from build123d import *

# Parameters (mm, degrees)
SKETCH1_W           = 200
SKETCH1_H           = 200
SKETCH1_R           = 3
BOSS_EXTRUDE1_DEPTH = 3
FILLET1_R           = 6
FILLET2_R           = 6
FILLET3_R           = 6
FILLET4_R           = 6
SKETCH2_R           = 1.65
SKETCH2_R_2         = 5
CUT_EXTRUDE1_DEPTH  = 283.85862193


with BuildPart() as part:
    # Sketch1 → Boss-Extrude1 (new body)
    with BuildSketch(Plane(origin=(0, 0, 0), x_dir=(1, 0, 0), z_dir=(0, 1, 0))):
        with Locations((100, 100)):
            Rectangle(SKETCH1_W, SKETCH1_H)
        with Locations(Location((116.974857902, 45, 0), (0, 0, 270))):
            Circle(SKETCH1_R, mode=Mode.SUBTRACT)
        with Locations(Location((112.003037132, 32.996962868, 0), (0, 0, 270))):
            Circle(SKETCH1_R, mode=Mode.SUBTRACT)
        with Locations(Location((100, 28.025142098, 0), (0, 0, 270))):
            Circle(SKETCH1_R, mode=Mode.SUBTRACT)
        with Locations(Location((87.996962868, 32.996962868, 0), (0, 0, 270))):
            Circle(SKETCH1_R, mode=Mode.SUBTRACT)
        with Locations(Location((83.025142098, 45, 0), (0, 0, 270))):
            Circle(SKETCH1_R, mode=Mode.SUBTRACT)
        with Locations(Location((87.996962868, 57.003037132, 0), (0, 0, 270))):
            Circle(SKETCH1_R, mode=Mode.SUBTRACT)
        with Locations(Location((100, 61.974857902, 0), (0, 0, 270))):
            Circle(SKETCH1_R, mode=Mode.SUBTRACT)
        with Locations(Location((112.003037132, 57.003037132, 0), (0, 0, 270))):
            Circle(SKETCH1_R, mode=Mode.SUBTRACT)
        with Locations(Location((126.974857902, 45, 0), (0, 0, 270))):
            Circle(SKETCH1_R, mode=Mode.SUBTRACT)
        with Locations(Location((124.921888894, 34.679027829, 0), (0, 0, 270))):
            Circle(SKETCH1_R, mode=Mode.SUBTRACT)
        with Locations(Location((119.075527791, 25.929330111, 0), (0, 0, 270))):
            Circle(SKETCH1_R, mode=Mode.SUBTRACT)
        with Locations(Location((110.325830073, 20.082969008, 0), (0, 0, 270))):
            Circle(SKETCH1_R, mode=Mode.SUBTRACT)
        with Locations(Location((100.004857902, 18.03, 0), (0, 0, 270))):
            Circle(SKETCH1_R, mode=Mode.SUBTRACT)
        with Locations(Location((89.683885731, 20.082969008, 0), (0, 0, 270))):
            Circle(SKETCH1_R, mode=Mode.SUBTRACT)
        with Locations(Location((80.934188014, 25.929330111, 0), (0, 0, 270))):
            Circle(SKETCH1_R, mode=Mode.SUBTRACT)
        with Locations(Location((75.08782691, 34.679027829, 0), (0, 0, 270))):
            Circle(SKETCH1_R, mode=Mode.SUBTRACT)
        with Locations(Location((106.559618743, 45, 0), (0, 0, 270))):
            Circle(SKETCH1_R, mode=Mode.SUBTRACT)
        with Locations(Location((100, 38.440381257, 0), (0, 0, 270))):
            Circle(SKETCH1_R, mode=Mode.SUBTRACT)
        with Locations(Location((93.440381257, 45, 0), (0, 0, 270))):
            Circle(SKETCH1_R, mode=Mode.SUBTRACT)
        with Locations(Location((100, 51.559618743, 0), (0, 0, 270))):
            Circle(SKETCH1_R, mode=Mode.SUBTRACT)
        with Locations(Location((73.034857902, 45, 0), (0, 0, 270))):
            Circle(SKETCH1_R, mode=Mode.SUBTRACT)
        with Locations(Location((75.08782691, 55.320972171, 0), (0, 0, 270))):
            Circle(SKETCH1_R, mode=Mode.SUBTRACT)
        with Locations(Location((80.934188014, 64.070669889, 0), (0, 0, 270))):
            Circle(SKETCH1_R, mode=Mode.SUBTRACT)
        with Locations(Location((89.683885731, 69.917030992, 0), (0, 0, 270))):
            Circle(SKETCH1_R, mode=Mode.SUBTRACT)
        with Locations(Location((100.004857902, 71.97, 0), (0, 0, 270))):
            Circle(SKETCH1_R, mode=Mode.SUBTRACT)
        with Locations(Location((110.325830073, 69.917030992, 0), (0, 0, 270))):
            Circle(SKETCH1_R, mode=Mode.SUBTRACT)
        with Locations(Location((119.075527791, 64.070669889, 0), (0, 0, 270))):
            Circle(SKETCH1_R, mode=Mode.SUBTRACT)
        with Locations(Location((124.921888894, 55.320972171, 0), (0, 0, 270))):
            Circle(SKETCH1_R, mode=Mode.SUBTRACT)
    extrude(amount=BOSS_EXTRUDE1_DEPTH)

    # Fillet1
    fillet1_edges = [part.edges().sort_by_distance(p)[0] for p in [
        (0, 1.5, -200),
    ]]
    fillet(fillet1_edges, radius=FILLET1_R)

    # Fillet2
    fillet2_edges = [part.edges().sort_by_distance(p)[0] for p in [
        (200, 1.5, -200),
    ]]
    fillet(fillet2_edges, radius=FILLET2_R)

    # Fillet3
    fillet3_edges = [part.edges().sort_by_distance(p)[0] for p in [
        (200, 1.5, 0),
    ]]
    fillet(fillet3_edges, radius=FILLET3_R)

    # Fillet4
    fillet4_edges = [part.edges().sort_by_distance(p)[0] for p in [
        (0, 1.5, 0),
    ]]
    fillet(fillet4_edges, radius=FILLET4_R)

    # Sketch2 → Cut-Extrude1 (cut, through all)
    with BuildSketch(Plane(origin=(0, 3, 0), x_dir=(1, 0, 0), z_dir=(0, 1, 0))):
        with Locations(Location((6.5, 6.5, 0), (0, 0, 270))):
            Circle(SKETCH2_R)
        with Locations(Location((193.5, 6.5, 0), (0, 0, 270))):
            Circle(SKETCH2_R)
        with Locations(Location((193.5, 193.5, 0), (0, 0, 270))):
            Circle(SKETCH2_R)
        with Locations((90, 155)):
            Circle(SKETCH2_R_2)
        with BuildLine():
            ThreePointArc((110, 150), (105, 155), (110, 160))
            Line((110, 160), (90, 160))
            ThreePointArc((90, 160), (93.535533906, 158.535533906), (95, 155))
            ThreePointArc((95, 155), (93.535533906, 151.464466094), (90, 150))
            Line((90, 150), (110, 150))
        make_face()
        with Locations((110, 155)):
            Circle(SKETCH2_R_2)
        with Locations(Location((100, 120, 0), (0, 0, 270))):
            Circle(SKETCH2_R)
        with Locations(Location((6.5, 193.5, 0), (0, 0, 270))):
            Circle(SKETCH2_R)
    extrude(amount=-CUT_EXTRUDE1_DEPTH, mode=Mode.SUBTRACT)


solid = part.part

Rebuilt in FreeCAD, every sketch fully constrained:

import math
import FreeCAD as App
import Part
import Sketcher
from FreeCAD import Vector


def edges_at(feature, points):
    """Names of the edges that pass closest to the given points."""
    edges = feature.Shape.Edges
    near = lambda p: min(range(len(edges)), key=lambda i: edges[i].distToShape(Part.Vertex(*p))[0])
    return sorted({f"Edge{near(p) + 1}" for p in points})

doc = App.newDocument("Part")
body = doc.addObject("PartDesign::Body", "Body")

# Sketch on XZ plane
sketch1 = body.newObject("Sketcher::SketchObject", "Sketch")
sketch1.AttachmentSupport = (doc.getObject("XZ_Plane"), [""])
sketch1.MapMode = "FlatFace"
sketch1.addGeometry(Part.LineSegment(Vector(0, -200, 0), Vector(0, 0, 0)), False)
sketch1.addGeometry(Part.LineSegment(Vector(0, 0, 0), Vector(200, 0, 0)), False)
sketch1.addGeometry(Part.LineSegment(Vector(200, 0, 0), Vector(200, -200, 0)), False)
sketch1.addGeometry(Part.LineSegment(Vector(200, -200, 0), Vector(0, -200, 0)), False)
sketch1.addGeometry(Part.Circle(Vector(80.9, -25.9, 0), Vector(0, 0, 1), 3), False)
sketch1.addGeometry(Part.Circle(Vector(89.7, -20.1, 0), Vector(0, 0, 1), 3), False)
sketch1.addGeometry(Part.Circle(Vector(100, -28, 0), Vector(0, 0, 1), 3), False)
sketch1.addGeometry(Part.Circle(Vector(75.1, -34.7, 0), Vector(0, 0, 1), 3), False)
sketch1.addGeometry(Part.Circle(Vector(88, -33, 0), Vector(0, 0, 1), 3), False)
sketch1.addGeometry(Part.Circle(Vector(100, -38.4, 0), Vector(0, 0, 1), 3), False)
sketch1.addGeometry(Part.Circle(Vector(100, -18, 0), Vector(0, 0, 1), 3), False)
sketch1.addGeometry(Part.Circle(Vector(110.3, -20.1, 0), Vector(0, 0, 1), 3), False)
sketch1.addGeometry(Part.Circle(Vector(119.1, -25.9, 0), Vector(0, 0, 1), 3), False)
sketch1.addGeometry(Part.Circle(Vector(112, -33, 0), Vector(0, 0, 1), 3), False)
sketch1.addGeometry(Part.Circle(Vector(124.9, -34.7, 0), Vector(0, 0, 1), 3), False)
sketch1.addGeometry(Part.Circle(Vector(73, -45, 0), Vector(0, 0, 1), 3), False)
sketch1.addGeometry(Part.Circle(Vector(83, -45, 0), Vector(0, 0, 1), 3), False)
sketch1.addGeometry(Part.Circle(Vector(75.1, -55.3, 0), Vector(0, 0, 1), 3), False)
sketch1.addGeometry(Part.Circle(Vector(93.4, -45, 0), Vector(0, 0, 1), 3), False)
sketch1.addGeometry(Part.Circle(Vector(100, -51.6, 0), Vector(0, 0, 1), 3), False)
sketch1.addGeometry(Part.Circle(Vector(88, -57, 0), Vector(0, 0, 1), 3), False)
sketch1.addGeometry(Part.Circle(Vector(80.9, -64.1, 0), Vector(0, 0, 1), 3), False)
sketch1.addGeometry(Part.Circle(Vector(100, -62, 0), Vector(0, 0, 1), 3), False)
sketch1.addGeometry(Part.Circle(Vector(89.7, -69.9, 0), Vector(0, 0, 1), 3), False)
sketch1.addGeometry(Part.Circle(Vector(106.6, -45, 0), Vector(0, 0, 1), 3), False)
sketch1.addGeometry(Part.Circle(Vector(112, -57, 0), Vector(0, 0, 1), 3), False)
sketch1.addGeometry(Part.Circle(Vector(117, -45, 0), Vector(0, 0, 1), 3), False)
sketch1.addGeometry(Part.Circle(Vector(127, -45, 0), Vector(0, 0, 1), 3), False)
sketch1.addGeometry(Part.Circle(Vector(124.9, -55.3, 0), Vector(0, 0, 1), 3), False)
sketch1.addGeometry(Part.Circle(Vector(100, -72, 0), Vector(0, 0, 1), 3), False)
sketch1.addGeometry(Part.Circle(Vector(110.3, -69.9, 0), Vector(0, 0, 1), 3), False)
sketch1.addGeometry(Part.Circle(Vector(119.1, -64.1, 0), Vector(0, 0, 1), 3), False)
sketch1.addConstraint(Sketcher.Constraint("Coincident", 0, 2, 1, 1))
sketch1.addConstraint(Sketcher.Constraint("Coincident", 1, 2, 2, 1))
sketch1.addConstraint(Sketcher.Constraint("Coincident", 2, 2, 3, 1))
sketch1.addConstraint(Sketcher.Constraint("Coincident", 3, 2, 0, 1))
sketch1.addConstraint(Sketcher.Constraint("Vertical", 0))
sketch1.addConstraint(Sketcher.Constraint("Horizontal", 1))
sketch1.addConstraint(Sketcher.Constraint("Vertical", 2))
sketch1.addConstraint(Sketcher.Constraint("Horizontal", 3))
sketch1.addConstraint(Sketcher.Constraint("Coincident", 0, 2, -1, 1))
sketch1.addConstraint(Sketcher.Constraint("Equal", 4, 5))
sketch1.addConstraint(Sketcher.Constraint("Equal", 5, 6))
sketch1.addConstraint(Sketcher.Constraint("Equal", 6, 7))
sketch1.addConstraint(Sketcher.Constraint("Equal", 7, 8))
sketch1.addConstraint(Sketcher.Constraint("Equal", 8, 9))
sketch1.addConstraint(Sketcher.Constraint("Equal", 9, 10))
sketch1.addConstraint(Sketcher.Constraint("Equal", 10, 11))
sketch1.addConstraint(Sketcher.Constraint("Equal", 11, 12))
sketch1.addConstraint(Sketcher.Constraint("Equal", 12, 13))
sketch1.addConstraint(Sketcher.Constraint("Equal", 13, 14))
sketch1.addConstraint(Sketcher.Constraint("Equal", 14, 15))
sketch1.addConstraint(Sketcher.Constraint("Equal", 15, 16))
sketch1.addConstraint(Sketcher.Constraint("Equal", 16, 17))
sketch1.addConstraint(Sketcher.Constraint("Equal", 17, 18))
sketch1.addConstraint(Sketcher.Constraint("Equal", 18, 19))
sketch1.addConstraint(Sketcher.Constraint("Equal", 19, 20))
sketch1.addConstraint(Sketcher.Constraint("Equal", 20, 21))
sketch1.addConstraint(Sketcher.Constraint("Equal", 21, 22))
sketch1.addConstraint(Sketcher.Constraint("Equal", 22, 23))
sketch1.addConstraint(Sketcher.Constraint("Equal", 23, 24))
sketch1.addConstraint(Sketcher.Constraint("Equal", 24, 25))
sketch1.addConstraint(Sketcher.Constraint("Equal", 25, 26))
sketch1.addConstraint(Sketcher.Constraint("Equal", 26, 27))
sketch1.addConstraint(Sketcher.Constraint("Equal", 27, 28))
sketch1.addConstraint(Sketcher.Constraint("Equal", 28, 29))
sketch1.addConstraint(Sketcher.Constraint("Equal", 29, 30))
sketch1.addConstraint(Sketcher.Constraint("Equal", 30, 31))
sketch1.addConstraint(Sketcher.Constraint("Horizontal", 5, 3, 11, 3))
sketch1.addConstraint(Sketcher.Constraint("Horizontal", 4, 3, 12, 3))
sketch1.addConstraint(Sketcher.Constraint("Horizontal", 8, 3, 13, 3))
sketch1.addConstraint(Sketcher.Constraint("Horizontal", 7, 3, 14, 3))
sketch1.addConstraint(Sketcher.Constraint("Horizontal", 15, 3, 16, 3))
sketch1.addConstraint(Sketcher.Constraint("Horizontal", 16, 3, 18, 3))
sketch1.addConstraint(Sketcher.Constraint("Horizontal", 18, 3, 24, 3))
sketch1.addConstraint(Sketcher.Constraint("Horizontal", 20, 3, 25, 3))
sketch1.addConstraint(Sketcher.Constraint("Horizontal", 24, 3, 26, 3))
sketch1.addConstraint(Sketcher.Constraint("Horizontal", 26, 3, 27, 3))
sketch1.addConstraint(Sketcher.Constraint("Horizontal", 17, 3, 28, 3))
sketch1.addConstraint(Sketcher.Constraint("Horizontal", 23, 3, 30, 3))
sketch1.addConstraint(Sketcher.Constraint("Horizontal", 21, 3, 31, 3))
sketch1.addConstraint(Sketcher.Constraint("Vertical", 6, 3, 9, 3))
sketch1.addConstraint(Sketcher.Constraint("Vertical", 7, 3, 17, 3))
sketch1.addConstraint(Sketcher.Constraint("Vertical", 9, 3, 19, 3))
sketch1.addConstraint(Sketcher.Constraint("Vertical", 8, 3, 20, 3))
sketch1.addConstraint(Sketcher.Constraint("Vertical", 4, 3, 21, 3))
sketch1.addConstraint(Sketcher.Constraint("Vertical", 19, 3, 22, 3))
sketch1.addConstraint(Sketcher.Constraint("Vertical", 5, 3, 23, 3))
sketch1.addConstraint(Sketcher.Constraint("Vertical", 13, 3, 25, 3))
sketch1.addConstraint(Sketcher.Constraint("Vertical", 14, 3, 28, 3))
sketch1.addConstraint(Sketcher.Constraint("Vertical", 10, 3, 29, 3))
sketch1.addConstraint(Sketcher.Constraint("Vertical", 11, 3, 30, 3))
sketch1.addConstraint(Sketcher.Constraint("Vertical", 12, 3, 31, 3))
sketch1.addConstraint(Sketcher.Constraint("Equal", 3, 0))
sketch1.addConstraint(Sketcher.Constraint("Diameter", 4, 6.0))
sketch1.addConstraint(Sketcher.Constraint("DistanceX", 1, 1, 1, 2, 200.0))
sketch1.addConstraint(Sketcher.Constraint("DistanceX", -1, 1, 6, 3, 100.0))
sketch1.addConstraint(Sketcher.Constraint("DistanceY", 15, 3, -1, 1, 45.0))
sketch1.addConstraint(Sketcher.Constraint("DistanceX", 26, 3, 27, 3, 10.0))
sketch1.addConstraint(Sketcher.Constraint("DistanceY", 10, 3, -1, 1, 18.03))
sketch1.addConstraint(Sketcher.Constraint("DistanceY", 29, 3, -1, 1, 71.97))
sketch1.addConstraint(Sketcher.Constraint("DistanceX", -1, 1, 4, 3, 80.934188))
sketch1.addConstraint(Sketcher.Constraint("DistanceY", 4, 3, -1, 1, 25.92933))
sketch1.addConstraint(Sketcher.Constraint("DistanceY", 5, 3, -1, 1, 20.082969))
sketch1.addConstraint(Sketcher.Constraint("DistanceY", 9, 3, -1, 1, 38.440381))
sketch1.addConstraint(Sketcher.Constraint("DistanceX", -1, 1, 11, 3, 110.32583))
sketch1.addConstraint(Sketcher.Constraint("DistanceX", -1, 1, 14, 3, 124.921889))
sketch1.addConstraint(Sketcher.Constraint("DistanceX", -1, 1, 18, 3, 93.440381))
sketch1.addConstraint(Sketcher.Constraint("DistanceY", 19, 3, -1, 1, 51.559619))
sketch1.addConstraint(Sketcher.Constraint("DistanceY", 21, 3, -1, 1, 64.07067))
sketch1.addConstraint(Sketcher.Constraint("DistanceY", 23, 3, -1, 1, 69.917031))
sketch1.addConstraint(Sketcher.Constraint("DistanceX", -1, 1, 24, 3, 106.559619))
sketch1.addConstraint(Sketcher.Constraint("DistanceY", 6, 3, 4, 3, 2.095812))
sketch1.addConstraint(Sketcher.Constraint("DistanceX", 7, 3, 4, 3, 5.846361))
sketch1.addConstraint(Sketcher.Constraint("DistanceX", 7, 3, 5, 3, 14.596059))
sketch1.addConstraint(Sketcher.Constraint("DistanceY", 7, 3, 5, 3, 14.596059))
sketch1.addConstraint(Sketcher.Constraint("DistanceY", 8, 3, 6, 3, 4.971821))
sketch1.addConstraint(Sketcher.Constraint("DistanceX", 4, 3, 10, 3, 19.07067))
sketch1.addConstraint(Sketcher.Constraint("DistanceX", 10, 3, 12, 3, 19.07067))
sketch1.addConstraint(Sketcher.Constraint("DistanceX", 13, 3, 12, 3, 7.072491))
sketch1.addConstraint(Sketcher.Constraint("DistanceX", 15, 3, 7, 3, 2.052969))
sketch1.addConstraint(Sketcher.Constraint("DistanceX", 16, 3, 8, 3, 4.971821))
sketch1.addConstraint(Sketcher.Constraint("DistanceY", 17, 3, 8, 3, 22.324009))
sketch1.addConstraint(Sketcher.Constraint("DistanceX", 16, 3, 18, 3, 10.415239))
sketch1.addConstraint(Sketcher.Constraint("DistanceY", 20, 3, 19, 3, 5.443418))
sketch1.addConstraint(Sketcher.Constraint("DistanceY", 22, 3, 19, 3, 10.415239))
sketch1.addConstraint(Sketcher.Constraint("DistanceX", 24, 3, 26, 3, 10.415239))
pad1 = body.newObject("PartDesign::Pad", "Pad")
pad1.Profile = sketch1
pad1.Length = 3
pad1.Reversed = True
doc.recompute()

fillet = body.newObject("PartDesign::Fillet", "Fillet")
fillet.Base = (pad1, edges_at(pad1, [(0, 1.5, -200)]))
fillet.Radius = 6
doc.recompute()

fillet2 = body.newObject("PartDesign::Fillet", "Fillet001")
fillet2.Base = (fillet, edges_at(fillet, [(200, 1.5, -200)]))
fillet2.Radius = 6
doc.recompute()

fillet3 = body.newObject("PartDesign::Fillet", "Fillet002")
fillet3.Base = (fillet2, edges_at(fillet2, [(200, 1.5, 0)]))
fillet3.Radius = 6
doc.recompute()

fillet4 = body.newObject("PartDesign::Fillet", "Fillet003")
fillet4.Base = (fillet3, edges_at(fillet3, [(0, 1.5, 0)]))
fillet4.Radius = 6

# Sketch on XZ plane
sketch2 = body.newObject("Sketcher::SketchObject", "Sketch001")
sketch2.AttachmentSupport = (doc.getObject("XZ_Plane"), [""])
sketch2.MapMode = "FlatFace"
sketch2.AttachmentOffset = App.Placement(Vector(0, 0, -3), App.Rotation())
sketch2.addGeometry(Part.Circle(Vector(6.5, -6.5, 0), Vector(0, 0, 1), 1.6), False)
sketch2.addGeometry(Part.Circle(Vector(193.5, -6.5, 0), Vector(0, 0, 1), 1.6), False)
sketch2.addGeometry(Part.Circle(Vector(193.5, -193.5, 0), Vector(0, 0, 1), 1.6), False)
sketch2.addGeometry(Part.ArcOfCircle(Part.Circle(Vector(90, -155, 0), Vector(0, 0, 1), 5), math.radians(90), math.radians(270)), False)
sketch2.addGeometry(Part.LineSegment(Vector(90, -150, 0), Vector(110, -150, 0)), False)
sketch2.addGeometry(Part.ArcOfCircle(Part.Circle(Vector(110, -155, 0), Vector(0, 0, 1), 5), math.radians(-90), math.radians(90)), False)
sketch2.addGeometry(Part.LineSegment(Vector(110, -160, 0), Vector(90, -160, 0)), False)
sketch2.addGeometry(Part.Circle(Vector(100, -120, 0), Vector(0, 0, 1), 1.6), False)
sketch2.addGeometry(Part.Circle(Vector(6.5, -193.5, 0), Vector(0, 0, 1), 1.6), False)
sketch2.addConstraint(Sketcher.Constraint("Tangent", 3, 1, 4, 1))
sketch2.addConstraint(Sketcher.Constraint("Tangent", 4, 2, 5, 2))
sketch2.addConstraint(Sketcher.Constraint("Tangent", 5, 1, 6, 1))
sketch2.addConstraint(Sketcher.Constraint("Tangent", 6, 2, 3, 2))
sketch2.addConstraint(Sketcher.Constraint("Horizontal", 4))
sketch2.addConstraint(Sketcher.Constraint("Horizontal", 6))
sketch2.addConstraint(Sketcher.Constraint("Equal", 0, 1))
sketch2.addConstraint(Sketcher.Constraint("Equal", 1, 2))
sketch2.addConstraint(Sketcher.Constraint("Equal", 2, 7))
sketch2.addConstraint(Sketcher.Constraint("Equal", 7, 8))
sketch2.addConstraint(Sketcher.Constraint("Horizontal", 0, 3, 1, 3))
sketch2.addConstraint(Sketcher.Constraint("Horizontal", 2, 3, 8, 3))
sketch2.addConstraint(Sketcher.Constraint("Vertical", 1, 3, 2, 3))
sketch2.addConstraint(Sketcher.Constraint("Vertical", 0, 3, 8, 3))
sketch2.addConstraint(Sketcher.Constraint("Radius", 3, 5.0))
sketch2.addConstraint(Sketcher.Constraint("Diameter", 0, 3.3))
sketch2.addConstraint(Sketcher.Constraint("DistanceX", 4, 1, 4, 2, 20.0))
sketch2.addConstraint(Sketcher.Constraint("DistanceX", -1, 1, 3, 3, 90.0))
sketch2.addConstraint(Sketcher.Constraint("DistanceY", 3, 3, -1, 1, 155.0))
sketch2.addConstraint(Sketcher.Constraint("DistanceX", -1, 1, 7, 3, 100.0))
sketch2.addConstraint(Sketcher.Constraint("DistanceY", 7, 3, -1, 1, 120.0))
sketch2.addConstraint(Sketcher.Constraint("DistanceX", 0, 3, 1, 3, 187.0))
sketch2.addConstraint(Sketcher.Constraint("DistanceY", 2, 3, 1, 3, 187.0))
sketch2.addConstraint(Sketcher.Constraint("DistanceX", -1, 1, 0, 3, 6.5))
sketch2.addConstraint(Sketcher.Constraint("DistanceY", 0, 3, -1, 1, 6.5))
pocket1 = body.newObject("PartDesign::Pocket", "Pocket")
pocket1.Profile = sketch2
pocket1.Type = "ThroughAll"
pocket1.Reversed = True

doc.recompute()
